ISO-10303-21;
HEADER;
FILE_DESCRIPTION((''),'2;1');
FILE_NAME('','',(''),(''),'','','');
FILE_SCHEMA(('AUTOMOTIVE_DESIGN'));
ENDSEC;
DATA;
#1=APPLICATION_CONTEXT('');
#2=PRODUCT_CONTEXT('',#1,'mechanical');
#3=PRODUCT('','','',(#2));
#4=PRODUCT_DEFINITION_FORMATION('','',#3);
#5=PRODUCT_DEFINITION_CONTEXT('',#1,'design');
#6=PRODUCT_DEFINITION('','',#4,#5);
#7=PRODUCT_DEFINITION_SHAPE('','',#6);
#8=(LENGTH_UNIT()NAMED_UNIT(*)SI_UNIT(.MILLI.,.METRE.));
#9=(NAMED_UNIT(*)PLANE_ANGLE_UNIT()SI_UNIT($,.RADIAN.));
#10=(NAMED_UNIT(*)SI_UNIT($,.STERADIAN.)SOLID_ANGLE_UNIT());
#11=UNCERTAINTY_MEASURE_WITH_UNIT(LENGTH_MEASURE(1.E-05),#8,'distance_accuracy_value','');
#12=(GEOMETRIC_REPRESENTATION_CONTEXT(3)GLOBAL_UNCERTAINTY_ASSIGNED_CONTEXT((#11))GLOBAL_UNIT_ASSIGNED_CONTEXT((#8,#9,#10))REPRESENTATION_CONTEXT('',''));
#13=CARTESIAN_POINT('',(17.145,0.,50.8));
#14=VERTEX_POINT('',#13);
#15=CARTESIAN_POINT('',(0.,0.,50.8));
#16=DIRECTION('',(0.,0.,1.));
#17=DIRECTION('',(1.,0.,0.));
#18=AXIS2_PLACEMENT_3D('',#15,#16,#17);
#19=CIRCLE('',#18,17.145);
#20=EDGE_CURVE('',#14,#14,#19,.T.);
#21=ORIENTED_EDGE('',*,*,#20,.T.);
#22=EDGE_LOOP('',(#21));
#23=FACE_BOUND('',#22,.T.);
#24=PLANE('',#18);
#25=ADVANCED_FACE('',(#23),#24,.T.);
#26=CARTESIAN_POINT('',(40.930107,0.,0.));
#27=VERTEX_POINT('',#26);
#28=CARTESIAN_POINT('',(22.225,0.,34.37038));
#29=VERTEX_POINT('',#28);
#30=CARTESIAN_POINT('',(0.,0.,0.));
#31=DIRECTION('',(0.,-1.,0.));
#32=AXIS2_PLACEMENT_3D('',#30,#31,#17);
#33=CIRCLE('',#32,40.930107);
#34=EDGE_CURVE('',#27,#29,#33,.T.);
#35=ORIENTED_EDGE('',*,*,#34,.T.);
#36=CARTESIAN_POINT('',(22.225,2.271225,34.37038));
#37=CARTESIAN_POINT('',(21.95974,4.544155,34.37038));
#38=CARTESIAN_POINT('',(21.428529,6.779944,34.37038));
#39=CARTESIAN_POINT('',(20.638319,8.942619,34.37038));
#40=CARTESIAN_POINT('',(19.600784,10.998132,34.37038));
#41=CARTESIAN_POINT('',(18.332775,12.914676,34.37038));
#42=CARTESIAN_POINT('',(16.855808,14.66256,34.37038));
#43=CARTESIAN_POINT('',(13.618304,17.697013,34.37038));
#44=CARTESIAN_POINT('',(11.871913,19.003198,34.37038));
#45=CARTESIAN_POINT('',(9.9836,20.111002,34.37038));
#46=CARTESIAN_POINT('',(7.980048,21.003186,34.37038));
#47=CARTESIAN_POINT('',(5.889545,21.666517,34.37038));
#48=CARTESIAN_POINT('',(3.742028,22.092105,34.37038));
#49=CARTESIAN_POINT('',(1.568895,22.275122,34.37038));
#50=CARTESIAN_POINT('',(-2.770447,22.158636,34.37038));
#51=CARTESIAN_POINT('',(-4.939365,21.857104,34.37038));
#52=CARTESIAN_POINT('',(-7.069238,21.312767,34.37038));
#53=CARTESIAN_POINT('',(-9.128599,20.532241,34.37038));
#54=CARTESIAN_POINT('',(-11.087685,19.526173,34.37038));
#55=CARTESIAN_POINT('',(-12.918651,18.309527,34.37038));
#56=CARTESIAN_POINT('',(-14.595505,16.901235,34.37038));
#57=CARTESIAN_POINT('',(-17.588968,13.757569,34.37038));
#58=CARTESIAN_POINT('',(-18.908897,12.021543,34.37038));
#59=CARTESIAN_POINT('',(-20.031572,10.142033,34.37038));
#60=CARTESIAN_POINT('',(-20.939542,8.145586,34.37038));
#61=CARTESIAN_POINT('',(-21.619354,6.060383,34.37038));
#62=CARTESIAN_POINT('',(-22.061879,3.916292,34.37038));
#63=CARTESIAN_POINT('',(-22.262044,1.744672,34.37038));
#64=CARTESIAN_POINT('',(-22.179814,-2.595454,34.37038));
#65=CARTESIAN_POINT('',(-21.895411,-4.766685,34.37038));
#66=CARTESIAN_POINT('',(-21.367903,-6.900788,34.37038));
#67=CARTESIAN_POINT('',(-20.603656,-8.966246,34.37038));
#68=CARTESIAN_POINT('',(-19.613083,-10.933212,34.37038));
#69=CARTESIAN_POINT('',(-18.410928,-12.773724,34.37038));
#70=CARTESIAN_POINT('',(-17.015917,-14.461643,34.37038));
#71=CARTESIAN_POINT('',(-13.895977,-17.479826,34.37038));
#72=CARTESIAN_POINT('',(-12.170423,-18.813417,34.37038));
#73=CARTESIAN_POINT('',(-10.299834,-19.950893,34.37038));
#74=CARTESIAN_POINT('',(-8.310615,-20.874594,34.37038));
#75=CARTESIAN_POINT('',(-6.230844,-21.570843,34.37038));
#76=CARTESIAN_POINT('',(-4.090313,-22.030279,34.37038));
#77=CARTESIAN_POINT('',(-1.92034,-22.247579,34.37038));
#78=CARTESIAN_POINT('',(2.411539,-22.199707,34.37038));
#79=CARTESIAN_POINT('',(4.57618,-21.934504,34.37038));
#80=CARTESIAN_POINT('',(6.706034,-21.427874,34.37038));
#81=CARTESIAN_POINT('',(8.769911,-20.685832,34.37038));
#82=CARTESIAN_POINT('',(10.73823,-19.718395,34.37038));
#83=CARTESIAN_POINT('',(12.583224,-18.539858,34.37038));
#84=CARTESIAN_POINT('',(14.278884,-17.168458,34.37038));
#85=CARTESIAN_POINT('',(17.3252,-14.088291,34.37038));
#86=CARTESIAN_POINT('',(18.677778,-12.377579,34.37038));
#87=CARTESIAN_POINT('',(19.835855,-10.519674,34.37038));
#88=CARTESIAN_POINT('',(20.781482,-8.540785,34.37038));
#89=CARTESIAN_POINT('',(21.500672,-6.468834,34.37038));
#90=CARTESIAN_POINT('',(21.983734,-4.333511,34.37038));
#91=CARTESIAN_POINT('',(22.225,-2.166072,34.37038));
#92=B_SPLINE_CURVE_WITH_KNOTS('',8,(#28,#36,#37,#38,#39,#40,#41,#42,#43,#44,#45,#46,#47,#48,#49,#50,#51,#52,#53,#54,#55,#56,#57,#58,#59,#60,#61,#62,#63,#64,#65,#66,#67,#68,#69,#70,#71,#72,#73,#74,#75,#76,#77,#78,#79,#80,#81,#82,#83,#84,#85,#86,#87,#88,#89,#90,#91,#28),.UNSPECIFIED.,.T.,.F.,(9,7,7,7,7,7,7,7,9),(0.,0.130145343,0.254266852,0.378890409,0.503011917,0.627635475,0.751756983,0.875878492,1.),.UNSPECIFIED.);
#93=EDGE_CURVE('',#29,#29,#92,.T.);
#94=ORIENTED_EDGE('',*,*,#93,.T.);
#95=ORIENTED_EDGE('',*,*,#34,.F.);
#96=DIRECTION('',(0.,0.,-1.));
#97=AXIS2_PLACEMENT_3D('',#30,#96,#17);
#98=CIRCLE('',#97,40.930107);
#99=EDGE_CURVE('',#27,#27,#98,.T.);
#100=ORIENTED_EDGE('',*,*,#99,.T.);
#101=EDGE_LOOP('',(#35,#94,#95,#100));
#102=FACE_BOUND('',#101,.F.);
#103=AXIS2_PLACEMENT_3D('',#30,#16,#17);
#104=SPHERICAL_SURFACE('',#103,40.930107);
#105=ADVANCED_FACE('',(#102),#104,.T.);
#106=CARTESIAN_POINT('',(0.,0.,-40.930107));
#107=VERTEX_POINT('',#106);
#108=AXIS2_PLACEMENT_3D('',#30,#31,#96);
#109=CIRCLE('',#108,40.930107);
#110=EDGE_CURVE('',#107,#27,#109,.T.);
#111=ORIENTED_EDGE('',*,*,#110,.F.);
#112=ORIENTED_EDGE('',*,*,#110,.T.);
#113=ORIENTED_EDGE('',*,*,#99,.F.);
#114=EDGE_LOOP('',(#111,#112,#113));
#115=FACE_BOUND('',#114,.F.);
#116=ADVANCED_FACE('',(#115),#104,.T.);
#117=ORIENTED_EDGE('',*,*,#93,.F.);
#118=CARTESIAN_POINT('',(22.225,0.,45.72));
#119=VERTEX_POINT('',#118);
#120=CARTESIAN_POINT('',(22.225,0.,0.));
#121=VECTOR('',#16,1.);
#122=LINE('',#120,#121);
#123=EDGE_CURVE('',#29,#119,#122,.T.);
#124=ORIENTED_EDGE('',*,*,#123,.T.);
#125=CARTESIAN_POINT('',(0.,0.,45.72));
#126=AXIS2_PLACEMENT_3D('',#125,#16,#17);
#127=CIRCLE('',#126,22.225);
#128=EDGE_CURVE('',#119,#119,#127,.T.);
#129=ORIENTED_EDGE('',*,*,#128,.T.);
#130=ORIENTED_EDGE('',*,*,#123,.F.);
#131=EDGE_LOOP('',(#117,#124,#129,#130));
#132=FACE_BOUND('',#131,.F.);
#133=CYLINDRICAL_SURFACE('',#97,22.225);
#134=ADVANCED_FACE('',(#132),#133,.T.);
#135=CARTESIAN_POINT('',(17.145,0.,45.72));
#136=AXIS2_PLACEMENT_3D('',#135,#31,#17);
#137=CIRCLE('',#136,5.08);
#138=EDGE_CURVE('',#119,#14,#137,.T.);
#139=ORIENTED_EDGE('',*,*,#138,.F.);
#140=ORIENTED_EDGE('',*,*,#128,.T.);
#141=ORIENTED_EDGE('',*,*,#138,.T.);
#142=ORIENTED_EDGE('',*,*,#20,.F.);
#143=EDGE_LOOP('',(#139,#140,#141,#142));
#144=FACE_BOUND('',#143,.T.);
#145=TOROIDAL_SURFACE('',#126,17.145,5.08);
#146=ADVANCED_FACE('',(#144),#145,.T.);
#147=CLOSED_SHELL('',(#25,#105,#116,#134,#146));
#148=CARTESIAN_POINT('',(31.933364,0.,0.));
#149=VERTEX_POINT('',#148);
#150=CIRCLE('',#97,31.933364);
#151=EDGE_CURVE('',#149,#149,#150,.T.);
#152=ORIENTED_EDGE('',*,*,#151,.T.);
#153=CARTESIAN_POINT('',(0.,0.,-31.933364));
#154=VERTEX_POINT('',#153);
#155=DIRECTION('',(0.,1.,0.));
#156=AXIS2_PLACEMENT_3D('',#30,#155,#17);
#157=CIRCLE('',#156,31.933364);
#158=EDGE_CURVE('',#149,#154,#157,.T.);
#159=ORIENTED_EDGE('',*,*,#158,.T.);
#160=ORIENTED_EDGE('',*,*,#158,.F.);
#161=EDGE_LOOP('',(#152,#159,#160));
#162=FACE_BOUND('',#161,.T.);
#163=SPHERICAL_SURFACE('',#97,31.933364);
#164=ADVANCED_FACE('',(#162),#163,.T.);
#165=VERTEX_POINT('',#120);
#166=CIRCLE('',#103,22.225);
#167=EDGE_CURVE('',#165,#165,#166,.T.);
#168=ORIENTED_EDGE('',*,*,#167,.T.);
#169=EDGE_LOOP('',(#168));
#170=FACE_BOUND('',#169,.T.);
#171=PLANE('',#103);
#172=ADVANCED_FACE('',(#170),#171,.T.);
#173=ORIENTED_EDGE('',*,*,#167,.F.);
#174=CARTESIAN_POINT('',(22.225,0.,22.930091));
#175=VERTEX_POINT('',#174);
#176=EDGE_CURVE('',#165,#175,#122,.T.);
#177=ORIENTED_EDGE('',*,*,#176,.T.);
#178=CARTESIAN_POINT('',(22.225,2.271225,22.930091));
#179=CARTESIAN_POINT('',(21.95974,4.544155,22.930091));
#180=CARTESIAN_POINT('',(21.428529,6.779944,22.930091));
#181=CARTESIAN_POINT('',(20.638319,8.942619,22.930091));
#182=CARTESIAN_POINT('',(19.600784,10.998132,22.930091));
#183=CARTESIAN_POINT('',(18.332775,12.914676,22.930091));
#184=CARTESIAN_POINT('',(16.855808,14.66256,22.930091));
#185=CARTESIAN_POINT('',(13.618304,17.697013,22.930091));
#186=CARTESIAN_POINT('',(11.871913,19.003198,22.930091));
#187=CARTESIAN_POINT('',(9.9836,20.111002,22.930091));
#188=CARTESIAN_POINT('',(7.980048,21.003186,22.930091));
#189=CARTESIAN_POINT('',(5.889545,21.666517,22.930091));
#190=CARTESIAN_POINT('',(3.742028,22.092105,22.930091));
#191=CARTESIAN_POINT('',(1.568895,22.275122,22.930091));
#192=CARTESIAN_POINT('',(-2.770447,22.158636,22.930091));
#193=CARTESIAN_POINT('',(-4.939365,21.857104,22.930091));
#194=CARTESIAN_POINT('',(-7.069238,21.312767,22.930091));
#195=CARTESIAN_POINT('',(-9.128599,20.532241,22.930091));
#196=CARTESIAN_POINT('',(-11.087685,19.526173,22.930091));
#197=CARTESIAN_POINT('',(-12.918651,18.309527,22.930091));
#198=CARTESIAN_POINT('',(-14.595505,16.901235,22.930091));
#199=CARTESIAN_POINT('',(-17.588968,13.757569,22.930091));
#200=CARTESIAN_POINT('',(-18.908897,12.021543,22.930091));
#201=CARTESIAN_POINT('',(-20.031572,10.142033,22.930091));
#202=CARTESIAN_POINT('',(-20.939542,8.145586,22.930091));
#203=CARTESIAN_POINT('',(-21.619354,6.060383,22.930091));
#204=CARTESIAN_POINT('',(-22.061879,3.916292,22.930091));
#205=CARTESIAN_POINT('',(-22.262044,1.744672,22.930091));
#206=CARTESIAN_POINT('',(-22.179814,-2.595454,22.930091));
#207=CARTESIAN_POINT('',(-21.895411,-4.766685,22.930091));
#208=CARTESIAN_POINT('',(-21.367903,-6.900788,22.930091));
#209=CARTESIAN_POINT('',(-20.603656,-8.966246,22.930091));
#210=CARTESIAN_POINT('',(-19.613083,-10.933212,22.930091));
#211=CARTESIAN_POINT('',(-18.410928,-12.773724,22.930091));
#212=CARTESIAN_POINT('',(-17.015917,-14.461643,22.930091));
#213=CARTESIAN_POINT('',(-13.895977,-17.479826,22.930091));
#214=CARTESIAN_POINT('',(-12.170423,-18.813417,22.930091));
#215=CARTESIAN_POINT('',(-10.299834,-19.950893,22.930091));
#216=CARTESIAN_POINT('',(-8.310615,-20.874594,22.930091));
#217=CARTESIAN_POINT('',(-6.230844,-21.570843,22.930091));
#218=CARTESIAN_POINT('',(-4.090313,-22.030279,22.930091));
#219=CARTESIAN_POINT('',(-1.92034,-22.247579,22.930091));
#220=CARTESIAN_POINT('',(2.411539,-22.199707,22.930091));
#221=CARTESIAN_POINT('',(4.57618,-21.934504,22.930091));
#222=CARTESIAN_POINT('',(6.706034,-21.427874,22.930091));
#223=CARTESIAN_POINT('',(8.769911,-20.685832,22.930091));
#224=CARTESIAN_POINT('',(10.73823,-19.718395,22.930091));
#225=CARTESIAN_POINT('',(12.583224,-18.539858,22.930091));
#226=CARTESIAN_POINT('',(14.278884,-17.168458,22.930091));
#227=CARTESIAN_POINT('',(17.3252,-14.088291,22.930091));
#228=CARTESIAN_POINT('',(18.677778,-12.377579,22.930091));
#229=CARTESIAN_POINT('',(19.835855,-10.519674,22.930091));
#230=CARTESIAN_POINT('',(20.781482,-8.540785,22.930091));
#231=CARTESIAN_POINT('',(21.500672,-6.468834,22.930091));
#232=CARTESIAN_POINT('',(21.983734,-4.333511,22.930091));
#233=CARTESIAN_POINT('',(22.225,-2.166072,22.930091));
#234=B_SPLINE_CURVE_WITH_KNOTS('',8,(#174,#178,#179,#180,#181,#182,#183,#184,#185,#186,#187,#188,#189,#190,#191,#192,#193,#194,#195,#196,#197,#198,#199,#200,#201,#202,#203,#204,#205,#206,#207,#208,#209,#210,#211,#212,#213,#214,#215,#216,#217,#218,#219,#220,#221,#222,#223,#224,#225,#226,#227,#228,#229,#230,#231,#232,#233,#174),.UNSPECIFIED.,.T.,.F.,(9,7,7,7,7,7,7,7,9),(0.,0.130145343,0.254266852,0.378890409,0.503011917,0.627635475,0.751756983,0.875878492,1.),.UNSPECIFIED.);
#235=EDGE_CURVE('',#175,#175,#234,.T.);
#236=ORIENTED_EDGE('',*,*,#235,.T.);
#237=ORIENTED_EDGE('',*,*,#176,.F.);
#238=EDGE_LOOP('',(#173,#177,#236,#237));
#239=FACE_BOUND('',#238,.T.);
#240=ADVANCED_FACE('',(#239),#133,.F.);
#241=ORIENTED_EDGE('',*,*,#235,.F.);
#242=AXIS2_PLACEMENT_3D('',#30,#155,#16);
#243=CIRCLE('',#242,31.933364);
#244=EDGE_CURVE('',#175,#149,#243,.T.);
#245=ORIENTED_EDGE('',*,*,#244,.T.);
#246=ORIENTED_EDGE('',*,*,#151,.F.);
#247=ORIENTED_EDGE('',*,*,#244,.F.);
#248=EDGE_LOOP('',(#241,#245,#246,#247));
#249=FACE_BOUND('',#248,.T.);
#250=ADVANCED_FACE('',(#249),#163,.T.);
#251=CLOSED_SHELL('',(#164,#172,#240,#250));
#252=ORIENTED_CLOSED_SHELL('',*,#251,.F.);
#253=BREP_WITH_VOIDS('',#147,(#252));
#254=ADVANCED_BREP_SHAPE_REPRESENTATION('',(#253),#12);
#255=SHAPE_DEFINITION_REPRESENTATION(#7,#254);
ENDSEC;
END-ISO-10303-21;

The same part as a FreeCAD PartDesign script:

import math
import FreeCAD as App
import Part
import Sketcher
from FreeCAD import Vector
Q = App.Units.Quantity


def edges_at(feature, points):
    """Names of the edges that pass closest to the given points."""
    edges = feature.Shape.Edges
    near = lambda p: min(range(len(edges)), key=lambda i: edges[i].distToShape(Part.Vertex(*p))[0])
    return sorted({f"Edge{near(p) + 1}" for p in points})

doc = App.newDocument("Part")
body = doc.addObject("PartDesign::Body", "Body")

# Sketch on XZ plane
sketch1 = body.newObject("Sketcher::SketchObject", "Sketch")
sketch1.AttachmentSupport = (doc.getObject("XZ_Plane"), [""])
sketch1.MapMode = "FlatFace"
sketch1.addGeometry([
    Part.LineSegment(Vector(0, -32, 0), Vector(0, -41, 0)),  # 0
    Part.ArcOfCircle(Part.Circle(Vector(0, 0, 0), Vector(0, 0, 1), 41), math.radians(-90), math.radians(0)),  # 1
    Part.ArcOfCircle(Part.Circle(Vector(0, 0, 0), Vector(0, 0, 1), 41), math.radians(0), math.radians(90)),  # 2
    Part.LineSegment(Vector(0, 41, 0), Vector(0, 32, 0)),  # 3
    Part.ArcOfCircle(Part.Circle(Vector(0, 0, 0), Vector(0, 0, 1), 32), math.radians(0), math.radians(90)),  # 4
    Part.ArcOfCircle(Part.Circle(Vector(0, 0, 0), Vector(0, 0, 1), 32), math.radians(-90), math.radians(0)),  # 5
], False)
sketch1.addConstraint([
    Sketcher.Constraint("Coincident", 0, 2, 1, 1),
    Sketcher.Constraint("Tangent", 1, 2, 2, 1),
    Sketcher.Constraint("Coincident", 2, 2, 3, 1),
    Sketcher.Constraint("Coincident", 3, 2, 4, 2),
    Sketcher.Constraint("Tangent", 4, 1, 5, 2),
    Sketcher.Constraint("Coincident", 5, 1, 0, 1),
    Sketcher.Constraint("Vertical", 0),
    Sketcher.Constraint("Vertical", 3),
    Sketcher.Constraint("Coincident", 1, 3, -1, 1),
    Sketcher.Constraint("Coincident", 4, 3, -1, 1),
    Sketcher.Constraint("Equal", 1, 2),
    Sketcher.Constraint("Equal", 4, 5),
    Sketcher.Constraint("PointOnObject", 0, 2, -2),
    Sketcher.Constraint("PointOnObject", 1, 2, -1),
    Sketcher.Constraint("PointOnObject", 2, 2, -2),
    Sketcher.Constraint("PointOnObject", 4, 1, -1),
    Sketcher.Constraint("Radius", 1, 40.930107),
    Sketcher.Constraint("Radius", 4, 31.933364),
])
revolution = body.newObject("PartDesign::Revolution", "Revolution")
revolution.Profile = sketch1
revolution.ReferenceAxis = (sketch1, ["V_Axis"])
revolution.Angle = 360

# Sketch on XY plane
sketch2 = body.newObject("Sketcher::SketchObject", "Sketch001")
sketch2.AttachmentSupport = (doc.getObject("XY_Plane"), [""])
sketch2.MapMode = "FlatFace"
sketch2.addGeometry(Part.Circle(Vector(0, 0, 0), Vector(0, 0, 1), 22), False)
sketch2.addConstraint([
    Sketcher.Constraint("Coincident", 0, 3, -1, 1),
    Sketcher.Constraint("Diameter", 0, Q("1.75 in")),
])
pad1 = body.newObject("PartDesign::Pad", "Pad")
pad1.Profile = sketch2
pad1.Length = Q("2 in")
doc.recompute()

fillet = body.newObject("PartDesign::Fillet", "Fillet")
fillet.Base = (pad1, edges_at(pad1, [(-22.225, 0, 50.8)]))
fillet.Radius = Q("0.2 in")

doc.recompute()
